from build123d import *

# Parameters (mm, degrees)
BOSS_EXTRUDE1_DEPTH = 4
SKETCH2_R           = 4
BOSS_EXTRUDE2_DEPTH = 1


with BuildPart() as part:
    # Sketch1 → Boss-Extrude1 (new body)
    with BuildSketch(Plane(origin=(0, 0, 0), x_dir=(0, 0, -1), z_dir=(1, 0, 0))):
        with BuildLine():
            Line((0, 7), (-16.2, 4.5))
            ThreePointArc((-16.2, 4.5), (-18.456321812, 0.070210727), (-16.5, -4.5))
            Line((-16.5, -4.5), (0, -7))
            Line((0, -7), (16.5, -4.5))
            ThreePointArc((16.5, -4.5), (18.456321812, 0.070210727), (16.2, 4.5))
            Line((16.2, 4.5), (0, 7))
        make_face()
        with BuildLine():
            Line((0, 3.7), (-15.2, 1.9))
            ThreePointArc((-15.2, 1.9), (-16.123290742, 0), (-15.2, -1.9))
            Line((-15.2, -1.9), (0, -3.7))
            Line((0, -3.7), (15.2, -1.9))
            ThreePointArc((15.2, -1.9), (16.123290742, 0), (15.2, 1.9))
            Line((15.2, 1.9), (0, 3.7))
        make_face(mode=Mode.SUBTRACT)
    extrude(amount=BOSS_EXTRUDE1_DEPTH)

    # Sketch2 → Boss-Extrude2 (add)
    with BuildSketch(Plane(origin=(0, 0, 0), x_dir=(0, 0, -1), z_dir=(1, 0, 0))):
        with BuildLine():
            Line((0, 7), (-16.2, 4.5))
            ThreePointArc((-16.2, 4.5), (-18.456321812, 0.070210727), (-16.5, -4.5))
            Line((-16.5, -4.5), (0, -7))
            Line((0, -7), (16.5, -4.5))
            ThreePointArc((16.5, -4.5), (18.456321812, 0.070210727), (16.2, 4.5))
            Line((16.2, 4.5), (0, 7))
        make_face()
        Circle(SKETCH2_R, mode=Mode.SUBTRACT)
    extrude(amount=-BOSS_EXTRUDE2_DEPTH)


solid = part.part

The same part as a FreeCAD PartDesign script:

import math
import FreeCAD as App
import Part
import Sketcher

doc = App.newDocument("Part")
body = doc.addObject("PartDesign::Body", "Body")

# Sketch on YZ plane
sketch1 = body.newObject("Sketcher::SketchObject", "Sketch")
sketch1.AttachmentSupport = (doc.getObject("YZ_Plane"), [""])
sketch1.MapMode = "FlatFace"
sketch1.addGeometry(Part.LineSegment(App.Vector(7, 0, 0), App.Vector(4.5, 16.2, 0)), False)
sketch1.addGeometry(Part.ArcOfCircle(Part.Circle(App.Vector(-0.1, 12.6, 0), App.Vector(0, 0, 1), 5.9), math.radians(38), math.radians(138)), False)
sketch1.addGeometry(Part.LineSegment(App.Vector(-4.5, 16.5, 0), App.Vector(-7, 0, 0)), False)
sketch1.addGeometry(Part.LineSegment(App.Vector(-7, 0, 0), App.Vector(-4.5, -16.5, 0)), False)
sketch1.addGeometry(Part.ArcOfCircle(Part.Circle(App.Vector(-0.1, -12.6, 0), App.Vector(0, 0, 1), 5.9), math.radians(-138), math.radians(-38)), False)
sketch1.addGeometry(Part.LineSegment(App.Vector(4.5, -16.2, 0), App.Vector(7, 0, 0)), False)
sketch1.addGeometry(Part.LineSegment(App.Vector(1.9, 15.2, 0), App.Vector(3.7, 0, 0)), False)
sketch1.addGeometry(Part.LineSegment(App.Vector(3.7, 0, 0), App.Vector(1.9, -15.2, 0)), False)
sketch1.addGeometry(Part.ArcOfCircle(Part.Circle(App.Vector(0, -13.7, 0), App.Vector(0, 0, 1), 2.4), math.radians(-142), math.radians(-38)), False)
sketch1.addGeometry(Part.LineSegment(App.Vector(-1.9, -15.2, 0), App.Vector(-3.7, 0, 0)), False)
sketch1.addGeometry(Part.LineSegment(App.Vector(-3.7, 0, 0), App.Vector(-1.9, 15.2, 0)), False)
sketch1.addGeometry(Part.ArcOfCircle(Part.Circle(App.Vector(0, 13.7, 0), App.Vector(0, 0, 1), 2.4), math.radians(38), math.radians(142)), False)
sketch1.addConstraint(Sketcher.Constraint("Coincident", 0, 2, 1, 1))
sketch1.addConstraint(Sketcher.Constraint("Coincident", 1, 2, 2, 1))
sketch1.addConstraint(Sketcher.Constraint("Coincident", 2, 2, 3, 1))
sketch1.addConstraint(Sketcher.Constraint("Coincident", 3, 2, 4, 1))
sketch1.addConstraint(Sketcher.Constraint("Coincident", 4, 2, 5, 1))
sketch1.addConstraint(Sketcher.Constraint("Coincident", 5, 2, 0, 1))
sketch1.addConstraint(Sketcher.Constraint("Coincident", 6, 2, 7, 1))
sketch1.addConstraint(Sketcher.Constraint("Coincident", 7, 2, 8, 2))
sketch1.addConstraint(Sketcher.Constraint("Coincident", 8, 1, 9, 1))
sketch1.addConstraint(Sketcher.Constraint("Coincident", 9, 2, 10, 1))
sketch1.addConstraint(Sketcher.Constraint("Coincident", 10, 2, 11, 2))
sketch1.addConstraint(Sketcher.Constraint("Coincident", 11, 1, 6, 1))
sketch1.addConstraint(Sketcher.Constraint("Equal", 1, 4))
sketch1.addConstraint(Sketcher.Constraint("Equal", 8, 11))
sketch1.addConstraint(Sketcher.Constraint("Symmetric", 8, 3, 11, 3, -1, 1))
sketch1.addConstraint(Sketcher.Constraint("Symmetric", 2, 2, 5, 2, -1, 1))
sketch1.addConstraint(Sketcher.Constraint("Symmetric", 6, 2, 9, 2, -1, 1))
sketch1.addConstraint(Sketcher.Constraint("Symmetric", 7, 2, 8, 1, -2))
sketch1.addConstraint(Sketcher.Constraint("Symmetric", 1, 3, 4, 3, -1))
sketch1.addConstraint(Sketcher.Constraint("PointOnObject", 2, 2, -1))
sketch1.addConstraint(Sketcher.Constraint("PointOnObject", 6, 2, -1))
sketch1.addConstraint(Sketcher.Constraint("Parallel", 6, 9))
sketch1.addConstraint(Sketcher.Constraint("Parallel", 7, 10))
sketch1.addConstraint(Sketcher.Constraint("Vertical", 1, 2, 3, 2))
sketch1.addConstraint(Sketcher.Constraint("Vertical", 0, 2, 4, 2))
sketch1.addConstraint(Sketcher.Constraint("DistanceX", 2, 2, -1, 1, 7.0))
sketch1.addConstraint(Sketcher.Constraint("DistanceX", 1, 2, 0, 2, 9.0))
sketch1.addConstraint(Sketcher.Constraint("DistanceY", 4, 2, 7, 2, 1.0))
sketch1.addConstraint(Sketcher.Constraint("DistanceX", -1, 1, 0, 2, 4.5))
sketch1.addConstraint(Sketcher.Constraint("DistanceY", -1, 1, 0, 2, 16.2))
sketch1.addConstraint(Sketcher.Constraint("DistanceY", -1, 1, 1, 2, 16.5))
sketch1.addConstraint(Sketcher.Constraint("DistanceX", -1, 1, 6, 2, 3.7))
sketch1.addConstraint(Sketcher.Constraint("DistanceX", -1, 1, 7, 2, 1.9))
sketch1.addConstraint(Sketcher.Constraint("Radius", 8, 2.416609))
sketch1.addConstraint(Sketcher.Constraint("Radius", 1, 5.863373))
pad1 = body.newObject("PartDesign::Pad", "Pad")
pad1.Profile = sketch1
pad1.Length = 4

# Sketch on YZ plane
sketch2 = body.newObject("Sketcher::SketchObject", "Sketch001")
sketch2.AttachmentSupport = (doc.getObject("YZ_Plane"), [""])
sketch2.MapMode = "FlatFace"
sketch2.addGeometry(Part.LineSegment(App.Vector(7, 0, 0), App.Vector(4.5, 16.2, 0)), False)
sketch2.addGeometry(Part.ArcOfCircle(Part.Circle(App.Vector(-0.1, 12.6, 0), App.Vector(0, 0, 1), 5.9), math.radians(38), math.radians(138)), False)
sketch2.addGeometry(Part.LineSegment(App.Vector(-4.5, 16.5, 0), App.Vector(-7, 0, 0)), False)
sketch2.addGeometry(Part.LineSegment(App.Vector(-7, 0, 0), App.Vector(-4.5, -16.5, 0)), False)
sketch2.addGeometry(Part.ArcOfCircle(Part.Circle(App.Vector(-0.1, -12.6, 0), App.Vector(0, 0, 1), 5.9), math.radians(-138), math.radians(-38)), False)
sketch2.addGeometry(Part.LineSegment(App.Vector(4.5, -16.2, 0), App.Vector(7, 0, 0)), False)
sketch2.addGeometry(Part.Circle(App.Vector(0, 0, 0), App.Vector(0, 0, 1), 4), False)
sketch2.addConstraint(Sketcher.Constraint("Coincident", 0, 2, 1, 1))
sketch2.addConstraint(Sketcher.Constraint("Coincident", 1, 2, 2, 1))
sketch2.addConstraint(Sketcher.Constraint("Coincident", 2, 2, 3, 1))
sketch2.addConstraint(Sketcher.Constraint("Coincident", 3, 2, 4, 1))
sketch2.addConstraint(Sketcher.Constraint("Coincident", 4, 2, 5, 1))
sketch2.addConstraint(Sketcher.Constraint("Coincident", 5, 2, 0, 1))
sketch2.addConstraint(Sketcher.Constraint("Coincident", 6, 3, -1, 1))
sketch2.addConstraint(Sketcher.Constraint("Equal", 1, 4))
sketch2.addConstraint(Sketcher.Constraint("Symmetric", 2, 2, 5, 2, -1, 1))
sketch2.addConstraint(Sketcher.Constraint("Symmetric", 1, 3, 4, 3, -1))
sketch2.addConstraint(Sketcher.Constraint("PointOnObject", 2, 2, -1))
sketch2.addConstraint(Sketcher.Constraint("Vertical", 1, 2, 3, 2))
sketch2.addConstraint(Sketcher.Constraint("Vertical", 0, 2, 4, 2))
sketch2.addConstraint(Sketcher.Constraint("Diameter", 6, 8.0))
sketch2.addConstraint(Sketcher.Constraint("DistanceX", 2, 2, -1, 1, 7.0))
sketch2.addConstraint(Sketcher.Constraint("DistanceX", 1, 2, 0, 2, 9.0))
sketch2.addConstraint(Sketcher.Constraint("DistanceY", 3, 2, 1, 2, 33.0))
sketch2.addConstraint(Sketcher.Constraint("DistanceX", -1, 1, 0, 2, 4.5))
sketch2.addConstraint(Sketcher.Constraint("DistanceY", -1, 1, 0, 2, 16.2))
sketch2.addConstraint(Sketcher.Constraint("Radius", 1, 5.863373))
pad2 = body.newObject("PartDesign::Pad", "Pad001")
pad2.Profile = sketch2
pad2.Length = 1
pad2.Reversed = True

doc.recompute()
